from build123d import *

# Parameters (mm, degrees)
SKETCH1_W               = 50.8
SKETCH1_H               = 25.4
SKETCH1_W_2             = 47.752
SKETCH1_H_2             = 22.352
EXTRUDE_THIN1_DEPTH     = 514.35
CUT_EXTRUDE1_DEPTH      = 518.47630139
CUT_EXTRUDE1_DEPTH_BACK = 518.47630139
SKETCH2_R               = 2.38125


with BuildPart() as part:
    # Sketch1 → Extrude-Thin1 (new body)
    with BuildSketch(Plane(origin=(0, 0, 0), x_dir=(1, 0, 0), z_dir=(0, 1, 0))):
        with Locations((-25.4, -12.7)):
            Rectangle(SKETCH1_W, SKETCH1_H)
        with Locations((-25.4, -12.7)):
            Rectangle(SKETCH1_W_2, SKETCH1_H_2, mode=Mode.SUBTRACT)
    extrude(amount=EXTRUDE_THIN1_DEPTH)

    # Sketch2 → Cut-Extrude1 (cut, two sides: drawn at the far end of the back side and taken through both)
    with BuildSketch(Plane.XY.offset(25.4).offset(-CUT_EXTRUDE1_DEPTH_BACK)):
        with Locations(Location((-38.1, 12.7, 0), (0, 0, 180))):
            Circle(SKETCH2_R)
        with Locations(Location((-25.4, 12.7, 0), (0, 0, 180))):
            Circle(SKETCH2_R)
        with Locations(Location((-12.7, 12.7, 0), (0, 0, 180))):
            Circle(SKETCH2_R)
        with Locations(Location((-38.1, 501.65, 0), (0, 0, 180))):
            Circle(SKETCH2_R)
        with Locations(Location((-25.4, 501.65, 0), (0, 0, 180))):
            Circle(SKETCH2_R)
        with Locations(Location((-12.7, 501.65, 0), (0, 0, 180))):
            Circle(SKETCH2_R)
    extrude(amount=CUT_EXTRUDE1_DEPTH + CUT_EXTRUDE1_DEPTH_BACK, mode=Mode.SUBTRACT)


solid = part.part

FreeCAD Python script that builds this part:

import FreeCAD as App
import Part
import Sketcher
Q = App.Units.Quantity


def add_polygon(sketch, points):
    """Adds a closed chain of lines whose ends are joined by coincident constraints."""
    first, n = sketch.GeometryCount, len(points)
    for a, b in zip(points, points[1:] + points[:1]):
        sketch.addGeometry(Part.LineSegment(App.Vector(*a, 0), App.Vector(*b, 0)), False)
    for i in range(n):
        sketch.addConstraint(Sketcher.Constraint("Coincident", first + i, 2, first + (i + 1) % n, 1))

doc = App.newDocument("Part")
body = doc.addObject("PartDesign::Body", "Body")

sketch1 = body.newObject("Sketcher::SketchObject", "Sketch")
sketch1.AttachmentSupport = (doc.getObject("XZ_Plane"), [""])
sketch1.MapMode = "FlatFace"
add_polygon(sketch1, [(-51, 0), (-51, 25), (0, 25), (0, 0)])
add_polygon(sketch1, [(-2, 24), (-49, 24), (-49, 2), (-2, 2)])
sketch1.addConstraint([
    Sketcher.Constraint("Vertical", 0),
    Sketcher.Constraint("Horizontal", 1),
    Sketcher.Constraint("Vertical", 2),
    Sketcher.Constraint("Horizontal", 3),
    Sketcher.Constraint("Horizontal", 4),
    Sketcher.Constraint("Vertical", 5),
    Sketcher.Constraint("Horizontal", 6),
    Sketcher.Constraint("Vertical", 7),
    Sketcher.Constraint("Coincident", 2, 2, -1, 1),
    Sketcher.Constraint("DistanceX", 1, 1, 1, 2, Q("2 in")),
    Sketcher.Constraint("DistanceY", 0, 1, 0, 2, Q("1 in")),
    Sketcher.Constraint("DistanceX", 4, 2, 4, 1, Q("1.88 in")),
    Sketcher.Constraint("DistanceY", 5, 2, 5, 1, Q("0.88 in")),
    Sketcher.Constraint("DistanceX", 4, 2, -1, 1, Q("1.94 in")),
    Sketcher.Constraint("DistanceY", -1, 1, 4, 2, Q("0.94 in")),
])
pad1 = body.newObject("PartDesign::Pad", "Pad")
pad1.Profile = sketch1
pad1.Length = Q("20.25 in")
pad1.Reversed = True

sketch2 = body.newObject("Sketcher::SketchObject", "Sketch001")
sketch2.AttachmentSupport = (doc.getObject("XY_Plane"), [""])
sketch2.MapMode = "FlatFace"
sketch2.AttachmentOffset = App.Placement(App.Vector(0, 0, 1 * 25.4), App.Rotation())
sketch2.addGeometry([
    Part.Circle(App.Vector(-38.1, 12.7, 0), App.Vector(0, 0, 1), 2.4),
    Part.Circle(App.Vector(-25.4, 12.7, 0), App.Vector(0, 0, 1), 2.4),
    Part.Circle(App.Vector(-12.7, 12.7, 0), App.Vector(0, 0, 1), 2.4),
    Part.Circle(App.Vector(-38.1, 501.6, 0), App.Vector(0, 0, 1), 2.4),
    Part.Circle(App.Vector(-25.4, 501.6, 0), App.Vector(0, 0, 1), 2.4),
    Part.Circle(App.Vector(-12.7, 501.6, 0), App.Vector(0, 0, 1), 2.4),
], False)
sketch2.addConstraint([
    Sketcher.Constraint("Equal", 0, 1),
    Sketcher.Constraint("Equal", 1, 2),
    Sketcher.Constraint("Equal", 2, 3),
    Sketcher.Constraint("Equal", 3, 4),
    Sketcher.Constraint("Equal", 4, 5),
    Sketcher.Constraint("Horizontal", 0, 3, 1, 3),
    Sketcher.Constraint("Horizontal", 1, 3, 2, 3),
    Sketcher.Constraint("Horizontal", 3, 3, 4, 3),
    Sketcher.Constraint("Horizontal", 4, 3, 5, 3),
    Sketcher.Constraint("Vertical", 0, 3, 3, 3),
    Sketcher.Constraint("Vertical", 1, 3, 4, 3),
    Sketcher.Constraint("Vertical", 2, 3, 5, 3),
    Sketcher.Constraint("Diameter", 0, Q("0.1875 in")),
    Sketcher.Constraint("DistanceX", 1, 3, -1, 1, Q("1 in")),
    Sketcher.Constraint("DistanceX", 0, 3, 2, 3, Q("1 in")),
    Sketcher.Constraint("DistanceX", 0, 3, -1, 1, Q("1.5 in")),
    Sketcher.Constraint("DistanceY", -1, 1, 0, 3, Q("0.5 in")),
    Sketcher.Constraint("DistanceY", -1, 1, 3, 3, Q("19.75 in")),
])
pocket1 = body.newObject("PartDesign::Pocket", "Pocket")
pocket1.Profile = sketch2
pocket1.Type = "ThroughAll"
pocket1.Midplane = True

doc.recompute()
